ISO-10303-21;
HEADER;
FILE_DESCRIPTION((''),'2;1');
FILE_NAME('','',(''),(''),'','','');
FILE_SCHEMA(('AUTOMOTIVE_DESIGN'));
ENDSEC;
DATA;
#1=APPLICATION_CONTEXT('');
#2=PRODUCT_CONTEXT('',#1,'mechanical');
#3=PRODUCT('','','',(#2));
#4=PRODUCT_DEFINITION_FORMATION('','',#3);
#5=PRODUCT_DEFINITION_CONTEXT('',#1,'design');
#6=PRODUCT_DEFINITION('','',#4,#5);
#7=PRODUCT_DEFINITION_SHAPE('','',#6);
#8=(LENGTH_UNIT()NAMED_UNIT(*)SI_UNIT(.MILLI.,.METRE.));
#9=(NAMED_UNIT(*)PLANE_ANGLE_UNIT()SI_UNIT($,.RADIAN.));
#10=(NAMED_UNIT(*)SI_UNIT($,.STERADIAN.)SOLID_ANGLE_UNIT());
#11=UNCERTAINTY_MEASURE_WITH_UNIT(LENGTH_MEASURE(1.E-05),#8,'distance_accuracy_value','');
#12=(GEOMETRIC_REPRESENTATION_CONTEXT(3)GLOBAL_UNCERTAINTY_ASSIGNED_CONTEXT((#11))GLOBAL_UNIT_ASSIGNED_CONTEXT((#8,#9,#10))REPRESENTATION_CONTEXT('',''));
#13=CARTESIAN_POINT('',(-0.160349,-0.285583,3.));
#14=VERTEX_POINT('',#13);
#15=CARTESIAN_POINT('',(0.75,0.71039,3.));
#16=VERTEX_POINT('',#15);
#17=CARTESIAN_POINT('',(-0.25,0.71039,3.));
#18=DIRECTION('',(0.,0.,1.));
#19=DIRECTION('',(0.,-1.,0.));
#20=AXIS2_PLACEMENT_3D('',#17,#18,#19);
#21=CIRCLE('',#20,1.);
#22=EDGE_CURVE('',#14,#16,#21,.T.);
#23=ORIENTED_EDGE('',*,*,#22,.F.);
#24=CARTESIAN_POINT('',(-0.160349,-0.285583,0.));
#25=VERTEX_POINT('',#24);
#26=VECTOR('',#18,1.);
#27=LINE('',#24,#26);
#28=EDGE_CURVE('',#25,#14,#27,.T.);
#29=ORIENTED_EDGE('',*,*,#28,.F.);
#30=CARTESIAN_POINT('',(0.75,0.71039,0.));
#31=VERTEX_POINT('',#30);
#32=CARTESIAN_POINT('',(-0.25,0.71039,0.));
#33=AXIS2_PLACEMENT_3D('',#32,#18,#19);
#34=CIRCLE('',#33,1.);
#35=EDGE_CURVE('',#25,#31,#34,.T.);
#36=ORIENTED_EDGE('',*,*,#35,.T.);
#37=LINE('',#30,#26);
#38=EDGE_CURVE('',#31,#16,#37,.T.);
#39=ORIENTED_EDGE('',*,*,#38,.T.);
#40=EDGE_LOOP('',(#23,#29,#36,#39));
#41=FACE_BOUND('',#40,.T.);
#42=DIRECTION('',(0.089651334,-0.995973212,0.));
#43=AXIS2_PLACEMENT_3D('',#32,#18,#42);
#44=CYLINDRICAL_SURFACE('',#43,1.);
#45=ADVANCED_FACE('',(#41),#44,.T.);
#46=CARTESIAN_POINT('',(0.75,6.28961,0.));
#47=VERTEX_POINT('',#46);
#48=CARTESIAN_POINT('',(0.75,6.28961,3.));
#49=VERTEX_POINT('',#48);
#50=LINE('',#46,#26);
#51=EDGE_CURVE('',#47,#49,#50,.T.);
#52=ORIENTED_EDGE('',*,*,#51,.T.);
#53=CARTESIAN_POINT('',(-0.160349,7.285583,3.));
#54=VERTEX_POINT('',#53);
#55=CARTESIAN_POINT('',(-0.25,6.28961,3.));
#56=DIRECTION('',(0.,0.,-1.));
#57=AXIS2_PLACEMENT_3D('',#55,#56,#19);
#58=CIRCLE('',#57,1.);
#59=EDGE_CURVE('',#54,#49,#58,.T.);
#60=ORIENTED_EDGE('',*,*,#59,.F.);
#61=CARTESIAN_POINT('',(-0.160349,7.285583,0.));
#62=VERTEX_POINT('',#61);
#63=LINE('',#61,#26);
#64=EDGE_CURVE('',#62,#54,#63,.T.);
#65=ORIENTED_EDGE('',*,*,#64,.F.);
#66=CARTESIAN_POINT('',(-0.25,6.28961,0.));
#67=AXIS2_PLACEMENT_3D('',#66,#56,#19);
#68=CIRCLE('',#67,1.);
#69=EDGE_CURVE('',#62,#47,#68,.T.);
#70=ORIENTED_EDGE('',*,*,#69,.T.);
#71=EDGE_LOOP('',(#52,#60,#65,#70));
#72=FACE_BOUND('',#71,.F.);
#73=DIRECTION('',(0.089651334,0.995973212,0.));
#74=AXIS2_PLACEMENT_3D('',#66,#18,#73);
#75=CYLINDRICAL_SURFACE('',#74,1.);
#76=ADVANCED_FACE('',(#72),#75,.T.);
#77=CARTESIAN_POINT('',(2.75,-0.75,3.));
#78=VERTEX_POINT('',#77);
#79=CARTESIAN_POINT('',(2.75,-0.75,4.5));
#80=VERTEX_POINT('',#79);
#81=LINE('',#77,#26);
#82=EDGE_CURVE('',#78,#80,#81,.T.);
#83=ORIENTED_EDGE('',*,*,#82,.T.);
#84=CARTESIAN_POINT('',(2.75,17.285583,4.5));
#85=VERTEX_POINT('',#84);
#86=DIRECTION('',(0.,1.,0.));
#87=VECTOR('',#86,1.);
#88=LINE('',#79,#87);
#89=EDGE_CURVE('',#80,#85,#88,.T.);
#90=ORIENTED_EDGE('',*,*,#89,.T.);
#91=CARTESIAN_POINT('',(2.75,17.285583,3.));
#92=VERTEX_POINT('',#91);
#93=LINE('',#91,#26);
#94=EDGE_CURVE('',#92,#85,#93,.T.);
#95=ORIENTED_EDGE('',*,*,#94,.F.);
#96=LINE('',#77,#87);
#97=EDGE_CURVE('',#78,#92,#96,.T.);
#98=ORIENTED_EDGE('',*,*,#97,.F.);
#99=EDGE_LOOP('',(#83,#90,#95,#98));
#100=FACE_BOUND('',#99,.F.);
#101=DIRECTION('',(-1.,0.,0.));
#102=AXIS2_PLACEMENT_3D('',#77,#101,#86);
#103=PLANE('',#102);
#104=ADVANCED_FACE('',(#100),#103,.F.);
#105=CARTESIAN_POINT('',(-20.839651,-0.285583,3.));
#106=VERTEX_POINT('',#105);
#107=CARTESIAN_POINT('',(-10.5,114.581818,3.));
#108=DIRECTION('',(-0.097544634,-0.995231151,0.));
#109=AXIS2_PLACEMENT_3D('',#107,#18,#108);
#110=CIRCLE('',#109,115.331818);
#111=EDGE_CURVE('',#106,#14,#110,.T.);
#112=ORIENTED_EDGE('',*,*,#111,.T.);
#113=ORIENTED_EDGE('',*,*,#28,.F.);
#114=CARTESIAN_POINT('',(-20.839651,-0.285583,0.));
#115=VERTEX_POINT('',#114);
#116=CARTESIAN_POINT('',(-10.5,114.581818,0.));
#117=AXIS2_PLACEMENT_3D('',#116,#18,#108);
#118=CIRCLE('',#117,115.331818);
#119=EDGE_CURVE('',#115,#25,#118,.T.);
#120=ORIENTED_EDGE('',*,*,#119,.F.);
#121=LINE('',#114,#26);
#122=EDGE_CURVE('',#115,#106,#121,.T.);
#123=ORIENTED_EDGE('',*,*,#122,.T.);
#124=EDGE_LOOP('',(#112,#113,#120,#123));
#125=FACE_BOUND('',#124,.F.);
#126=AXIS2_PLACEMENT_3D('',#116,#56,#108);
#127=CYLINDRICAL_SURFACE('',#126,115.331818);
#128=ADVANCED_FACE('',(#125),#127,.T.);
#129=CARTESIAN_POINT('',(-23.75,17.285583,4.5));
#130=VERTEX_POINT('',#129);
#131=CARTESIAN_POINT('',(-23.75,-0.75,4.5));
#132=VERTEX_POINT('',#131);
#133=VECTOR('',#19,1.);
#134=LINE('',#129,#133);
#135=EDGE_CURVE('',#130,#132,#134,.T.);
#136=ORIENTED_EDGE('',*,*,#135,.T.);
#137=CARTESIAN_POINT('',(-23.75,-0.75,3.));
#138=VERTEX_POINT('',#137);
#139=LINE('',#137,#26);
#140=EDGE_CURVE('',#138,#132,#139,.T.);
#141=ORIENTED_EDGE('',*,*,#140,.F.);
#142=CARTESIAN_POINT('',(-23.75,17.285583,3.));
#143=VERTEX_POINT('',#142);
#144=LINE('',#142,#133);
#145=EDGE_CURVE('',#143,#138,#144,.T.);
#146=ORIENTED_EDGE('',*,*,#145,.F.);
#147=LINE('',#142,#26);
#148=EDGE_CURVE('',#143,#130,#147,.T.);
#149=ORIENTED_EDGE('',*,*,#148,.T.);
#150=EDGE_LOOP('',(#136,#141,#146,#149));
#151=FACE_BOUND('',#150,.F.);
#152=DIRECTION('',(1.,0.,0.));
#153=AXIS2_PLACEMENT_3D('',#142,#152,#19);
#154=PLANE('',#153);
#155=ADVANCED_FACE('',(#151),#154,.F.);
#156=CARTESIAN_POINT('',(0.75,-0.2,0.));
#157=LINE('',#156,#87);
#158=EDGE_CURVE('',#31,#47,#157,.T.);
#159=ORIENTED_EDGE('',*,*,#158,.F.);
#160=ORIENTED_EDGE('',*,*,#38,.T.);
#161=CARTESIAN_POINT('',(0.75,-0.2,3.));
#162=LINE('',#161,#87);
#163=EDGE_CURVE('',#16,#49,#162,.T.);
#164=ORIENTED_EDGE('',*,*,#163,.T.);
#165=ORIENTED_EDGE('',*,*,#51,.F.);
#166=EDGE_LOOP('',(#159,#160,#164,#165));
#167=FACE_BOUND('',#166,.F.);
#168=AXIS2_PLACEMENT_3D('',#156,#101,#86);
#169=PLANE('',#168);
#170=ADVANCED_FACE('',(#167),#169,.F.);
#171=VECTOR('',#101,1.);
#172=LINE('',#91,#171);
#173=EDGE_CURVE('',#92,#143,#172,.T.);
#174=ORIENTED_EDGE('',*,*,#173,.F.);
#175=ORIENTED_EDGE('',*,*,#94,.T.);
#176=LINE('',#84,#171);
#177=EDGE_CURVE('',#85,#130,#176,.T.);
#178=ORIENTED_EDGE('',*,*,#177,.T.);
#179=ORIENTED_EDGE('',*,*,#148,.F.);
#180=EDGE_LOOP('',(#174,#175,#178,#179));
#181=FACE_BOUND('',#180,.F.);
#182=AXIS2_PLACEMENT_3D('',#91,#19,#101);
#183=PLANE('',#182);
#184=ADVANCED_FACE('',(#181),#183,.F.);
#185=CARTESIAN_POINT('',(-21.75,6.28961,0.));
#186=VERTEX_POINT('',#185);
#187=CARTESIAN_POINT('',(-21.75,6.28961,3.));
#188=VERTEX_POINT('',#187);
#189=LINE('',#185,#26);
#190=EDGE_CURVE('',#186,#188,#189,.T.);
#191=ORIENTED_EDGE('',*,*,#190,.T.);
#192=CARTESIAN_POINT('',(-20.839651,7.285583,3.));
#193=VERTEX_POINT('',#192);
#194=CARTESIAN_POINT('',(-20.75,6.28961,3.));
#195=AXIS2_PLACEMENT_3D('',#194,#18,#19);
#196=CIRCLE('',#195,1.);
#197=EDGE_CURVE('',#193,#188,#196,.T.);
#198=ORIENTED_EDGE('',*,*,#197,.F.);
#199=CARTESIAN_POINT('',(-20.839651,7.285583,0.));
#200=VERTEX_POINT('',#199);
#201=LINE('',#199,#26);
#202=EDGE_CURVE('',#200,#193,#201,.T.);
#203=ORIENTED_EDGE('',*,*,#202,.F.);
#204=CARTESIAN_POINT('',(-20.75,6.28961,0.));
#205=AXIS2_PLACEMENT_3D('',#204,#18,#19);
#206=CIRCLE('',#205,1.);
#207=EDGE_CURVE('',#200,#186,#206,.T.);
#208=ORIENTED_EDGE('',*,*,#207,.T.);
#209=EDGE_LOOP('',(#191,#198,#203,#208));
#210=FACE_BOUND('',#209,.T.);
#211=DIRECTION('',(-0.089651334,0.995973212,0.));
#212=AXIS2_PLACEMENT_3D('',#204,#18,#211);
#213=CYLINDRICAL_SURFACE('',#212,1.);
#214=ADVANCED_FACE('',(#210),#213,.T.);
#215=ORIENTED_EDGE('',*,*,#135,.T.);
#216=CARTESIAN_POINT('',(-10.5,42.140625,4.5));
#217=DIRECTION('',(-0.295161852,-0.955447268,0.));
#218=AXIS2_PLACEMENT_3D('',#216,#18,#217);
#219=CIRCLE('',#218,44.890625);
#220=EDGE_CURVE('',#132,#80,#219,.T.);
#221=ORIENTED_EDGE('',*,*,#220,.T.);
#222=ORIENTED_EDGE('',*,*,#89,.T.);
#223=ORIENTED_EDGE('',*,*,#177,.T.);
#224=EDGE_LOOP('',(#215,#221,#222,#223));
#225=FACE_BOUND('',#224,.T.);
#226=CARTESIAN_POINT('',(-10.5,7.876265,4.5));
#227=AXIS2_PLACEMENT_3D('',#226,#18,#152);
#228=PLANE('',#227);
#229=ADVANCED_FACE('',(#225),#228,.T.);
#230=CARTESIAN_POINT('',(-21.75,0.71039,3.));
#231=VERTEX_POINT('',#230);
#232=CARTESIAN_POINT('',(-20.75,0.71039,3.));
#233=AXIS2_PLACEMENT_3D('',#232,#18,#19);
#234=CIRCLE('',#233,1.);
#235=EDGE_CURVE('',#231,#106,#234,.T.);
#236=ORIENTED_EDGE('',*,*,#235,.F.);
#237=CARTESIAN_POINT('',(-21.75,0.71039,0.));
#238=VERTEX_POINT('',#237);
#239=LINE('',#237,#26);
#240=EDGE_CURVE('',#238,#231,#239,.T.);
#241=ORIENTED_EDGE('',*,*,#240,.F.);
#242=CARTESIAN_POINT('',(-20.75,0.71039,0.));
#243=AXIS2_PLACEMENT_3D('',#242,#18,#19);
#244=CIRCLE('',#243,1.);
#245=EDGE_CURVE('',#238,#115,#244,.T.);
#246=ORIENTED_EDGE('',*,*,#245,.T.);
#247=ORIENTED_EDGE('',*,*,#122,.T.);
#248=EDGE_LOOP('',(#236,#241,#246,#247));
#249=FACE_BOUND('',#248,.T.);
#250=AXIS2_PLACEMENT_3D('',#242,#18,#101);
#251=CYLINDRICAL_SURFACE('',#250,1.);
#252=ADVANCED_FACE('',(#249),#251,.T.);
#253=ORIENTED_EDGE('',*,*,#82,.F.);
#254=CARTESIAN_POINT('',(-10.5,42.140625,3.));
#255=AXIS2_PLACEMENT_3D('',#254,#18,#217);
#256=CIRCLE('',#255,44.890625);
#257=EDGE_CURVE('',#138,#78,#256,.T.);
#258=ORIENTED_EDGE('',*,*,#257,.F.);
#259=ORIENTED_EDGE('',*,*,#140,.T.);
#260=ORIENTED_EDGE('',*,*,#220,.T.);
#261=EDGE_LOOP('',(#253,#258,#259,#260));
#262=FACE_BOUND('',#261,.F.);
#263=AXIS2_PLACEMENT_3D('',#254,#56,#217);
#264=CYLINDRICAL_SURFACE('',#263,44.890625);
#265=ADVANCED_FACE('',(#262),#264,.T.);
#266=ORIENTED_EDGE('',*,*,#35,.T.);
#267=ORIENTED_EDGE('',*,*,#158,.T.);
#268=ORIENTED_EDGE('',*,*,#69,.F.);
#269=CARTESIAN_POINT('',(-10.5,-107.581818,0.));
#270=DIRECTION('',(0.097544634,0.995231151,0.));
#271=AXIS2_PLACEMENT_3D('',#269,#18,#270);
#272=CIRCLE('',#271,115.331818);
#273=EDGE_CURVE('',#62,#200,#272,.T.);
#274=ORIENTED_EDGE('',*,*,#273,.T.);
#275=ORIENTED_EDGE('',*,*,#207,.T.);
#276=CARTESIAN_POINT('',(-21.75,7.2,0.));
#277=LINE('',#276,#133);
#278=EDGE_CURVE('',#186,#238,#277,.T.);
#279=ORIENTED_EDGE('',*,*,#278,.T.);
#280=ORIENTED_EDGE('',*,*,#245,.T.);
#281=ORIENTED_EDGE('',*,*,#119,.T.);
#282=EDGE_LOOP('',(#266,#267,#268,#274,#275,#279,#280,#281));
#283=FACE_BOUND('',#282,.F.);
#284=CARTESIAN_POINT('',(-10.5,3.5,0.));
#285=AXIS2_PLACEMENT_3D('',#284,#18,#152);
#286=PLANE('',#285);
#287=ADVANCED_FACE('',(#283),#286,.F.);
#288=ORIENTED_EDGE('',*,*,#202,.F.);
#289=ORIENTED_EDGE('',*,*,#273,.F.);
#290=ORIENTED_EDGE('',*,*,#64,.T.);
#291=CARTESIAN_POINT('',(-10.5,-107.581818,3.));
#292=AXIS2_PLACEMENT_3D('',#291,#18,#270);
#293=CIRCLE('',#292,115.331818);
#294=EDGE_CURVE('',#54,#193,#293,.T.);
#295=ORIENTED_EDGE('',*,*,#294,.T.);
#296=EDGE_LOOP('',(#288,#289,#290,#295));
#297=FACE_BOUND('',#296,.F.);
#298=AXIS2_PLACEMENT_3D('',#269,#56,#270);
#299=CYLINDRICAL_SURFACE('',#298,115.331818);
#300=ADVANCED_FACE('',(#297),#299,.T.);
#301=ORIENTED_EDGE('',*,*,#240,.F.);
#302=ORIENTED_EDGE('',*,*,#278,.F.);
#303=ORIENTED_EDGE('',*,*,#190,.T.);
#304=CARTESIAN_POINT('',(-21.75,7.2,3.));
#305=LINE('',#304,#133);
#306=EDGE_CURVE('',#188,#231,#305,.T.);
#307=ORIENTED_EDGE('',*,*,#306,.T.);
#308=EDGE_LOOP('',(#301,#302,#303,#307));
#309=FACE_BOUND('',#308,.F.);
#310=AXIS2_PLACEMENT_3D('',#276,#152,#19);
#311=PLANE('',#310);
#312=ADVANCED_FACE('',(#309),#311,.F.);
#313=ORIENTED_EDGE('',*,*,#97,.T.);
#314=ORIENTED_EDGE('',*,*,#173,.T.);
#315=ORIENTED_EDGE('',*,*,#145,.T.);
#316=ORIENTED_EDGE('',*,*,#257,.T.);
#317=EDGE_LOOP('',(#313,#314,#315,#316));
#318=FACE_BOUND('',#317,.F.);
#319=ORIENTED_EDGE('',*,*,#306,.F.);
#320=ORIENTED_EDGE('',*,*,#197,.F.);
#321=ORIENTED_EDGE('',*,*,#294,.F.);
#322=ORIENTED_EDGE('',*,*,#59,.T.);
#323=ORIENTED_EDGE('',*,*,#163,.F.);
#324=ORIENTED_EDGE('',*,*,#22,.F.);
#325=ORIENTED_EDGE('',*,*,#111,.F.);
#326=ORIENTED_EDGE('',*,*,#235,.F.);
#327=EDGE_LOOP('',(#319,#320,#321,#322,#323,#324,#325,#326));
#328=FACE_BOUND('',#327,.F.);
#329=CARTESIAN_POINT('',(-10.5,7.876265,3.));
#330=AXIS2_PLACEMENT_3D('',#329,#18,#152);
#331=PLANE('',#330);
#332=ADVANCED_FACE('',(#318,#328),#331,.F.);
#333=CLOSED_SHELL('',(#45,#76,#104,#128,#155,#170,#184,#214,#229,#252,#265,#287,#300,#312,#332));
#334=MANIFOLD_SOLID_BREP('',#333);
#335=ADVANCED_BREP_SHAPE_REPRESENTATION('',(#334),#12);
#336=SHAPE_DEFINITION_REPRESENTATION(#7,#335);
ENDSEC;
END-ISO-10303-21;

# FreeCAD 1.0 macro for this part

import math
import FreeCAD as App
import Part
import Sketcher


def edges_at(feature, points):
    """Names of the edges that pass closest to the given points."""
    edges = feature.Shape.Edges
    near = lambda p: min(range(len(edges)), key=lambda i: edges[i].distToShape(Part.Vertex(*p))[0])
    return sorted({f"Edge{near(p) + 1}" for p in points})

doc = App.newDocument("Part")
params = doc.addObject("Spreadsheet::Sheet", "Params")
for row, (alias, value) in enumerate([
    ("sketch1_height", "7.4 mm"),
    ("pad1_length", "3 mm"),
    ("fillet_radius", "1 mm"),
    ("sketch2_width", "26.5 mm"),
    ("pad2_length", "1.5 mm"),
], start=1):
    params.set(f"A{row}", alias)
    params.set(f"B{row}", "=" + value)
    params.setAlias(f"B{row}", alias)

body = doc.addObject("PartDesign::Body", "Body")

# Sketch on XY plane
sketch1 = body.newObject("Sketcher::SketchObject", "Sketch")
sketch1.AttachmentSupport = (doc.getObject("XY_Plane"), [""])
sketch1.MapMode = "FlatFace"
sketch1.addGeometry(Part.ArcOfCircle(Part.Circle(App.Vector(-10.5, -107.581818, 0), App.Vector(0, 0, 1), 115.331818), math.radians(84.402203), math.radians(95.597797)), False)
sketch1.addGeometry(Part.LineSegment(App.Vector(-21.75, 7.2, 0), App.Vector(-21.75, -0.2, 0)), False)
sketch1.addGeometry(Part.ArcOfCircle(Part.Circle(App.Vector(-10.5, 114.581818, 0), App.Vector(0, 0, 1), 115.331818), math.radians(-95.597797), math.radians(-84.402203)), False)
sketch1.addGeometry(Part.LineSegment(App.Vector(0.75, -0.2, 0), App.Vector(0.75, 7.2, 0)), False)
sketch1.addConstraint(Sketcher.Constraint("Coincident", 0, 2, 1, 1))
sketch1.addConstraint(Sketcher.Constraint("Coincident", 1, 2, 2, 1))
sketch1.addConstraint(Sketcher.Constraint("Coincident", 2, 2, 3, 1))
sketch1.addConstraint(Sketcher.Constraint("Coincident", 3, 2, 0, 1))
sketch1.addConstraint(Sketcher.Constraint("Vertical", 1))
sketch1.addConstraint(Sketcher.Constraint("Vertical", 3))
sketch1.addConstraint(Sketcher.Constraint("Equal", 0, 2))
sketch1.addConstraint(Sketcher.Constraint("Horizontal", 1, 2, 2, 2))
sketch1.addConstraint(Sketcher.Constraint("Horizontal", 0, 2, 3, 2))
sketch1.addConstraint(Sketcher.Constraint("DistanceY", 1, 2, 1, 1, 7.4))
sketch1.addConstraint(Sketcher.Constraint("DistanceX", 0, 3, -1, 1, 10.5))
sketch1.addConstraint(Sketcher.Constraint("DistanceY", -1, 1, 0, 2, 7.2))
sketch1.addConstraint(Sketcher.Constraint("DistanceX", 1, 2, 2, 2, 22.5))
sketch1.addConstraint(Sketcher.Constraint("Radius", 0, 115.331818))
sketch1.setExpression("Constraints[9]", "Params.sketch1_height")
pad1 = body.newObject("PartDesign::Pad", "Pad")
pad1.Profile = sketch1
pad1.setExpression("Length", "Params.pad1_length")
doc.recompute()

fillet = body.newObject("PartDesign::Fillet", "Fillet")
fillet.Base = (pad1, edges_at(pad1, [
    (-21.75, 7.2, 1.5),
    (-21.75, -0.2, 1.5),
    (0.75, -0.2, 1.5),
    (0.75, 7.2, 1.5),
]))
fillet.setExpression("Radius", "Params.fillet_radius")

# Sketch on XY plane
sketch2 = body.newObject("Sketcher::SketchObject", "Sketch001")
sketch2.AttachmentSupport = (doc.getObject("XY_Plane"), [""])
sketch2.MapMode = "FlatFace"
sketch2.AttachmentOffset = App.Placement(App.Vector(0, 0, 3), App.Rotation())
sketch2.addGeometry(Part.LineSegment(App.Vector(2.75, 17.285583, 0), App.Vector(-23.75, 17.285583, 0)), False)
sketch2.addGeometry(Part.LineSegment(App.Vector(-23.75, 17.285583, 0), App.Vector(-23.75, -0.75, 0)), False)
sketch2.addGeometry(Part.ArcOfCircle(Part.Circle(App.Vector(-10.5, 42.140625, 0), App.Vector(0, 0, 1), 44.890625), math.radians(-107.167243), math.radians(-72.832757)), False)
sketch2.addGeometry(Part.LineSegment(App.Vector(2.75, -0.75, 0), App.Vector(2.75, 17.285583, 0)), False)
sketch2.addConstraint(Sketcher.Constraint("Coincident", 0, 2, 1, 1))
sketch2.addConstraint(Sketcher.Constraint("Coincident", 1, 2, 2, 1))
sketch2.addConstraint(Sketcher.Constraint("Coincident", 2, 2, 3, 1))
sketch2.addConstraint(Sketcher.Constraint("Coincident", 3, 2, 0, 1))
sketch2.addConstraint(Sketcher.Constraint("Horizontal", 0))
sketch2.addConstraint(Sketcher.Constraint("Vertical", 1))
sketch2.addConstraint(Sketcher.Constraint("Vertical", 3))
sketch2.addConstraint(Sketcher.Constraint("Horizontal", 1, 2, 2, 2))
sketch2.addConstraint(Sketcher.Constraint("DistanceX", 0, 2, 0, 1, 26.5))
sketch2.addConstraint(Sketcher.Constraint("DistanceX", 2, 3, -1, 1, 10.5))
sketch2.addConstraint(Sketcher.Constraint("DistanceY", 1, 2, -1, 1, 0.75))
sketch2.addConstraint(Sketcher.Constraint("Radius", 2, 44.890625))
sketch2.addConstraint(Sketcher.Constraint("DistanceY", 1, 2, 1, 1, 18.035583))
sketch2.setExpression("Constraints[8]", "Params.sketch2_width")
pad2 = body.newObject("PartDesign::Pad", "Pad001")
pad2.Profile = sketch2
pad2.setExpression("Length", "Params.pad2_length")

doc.recompute()
